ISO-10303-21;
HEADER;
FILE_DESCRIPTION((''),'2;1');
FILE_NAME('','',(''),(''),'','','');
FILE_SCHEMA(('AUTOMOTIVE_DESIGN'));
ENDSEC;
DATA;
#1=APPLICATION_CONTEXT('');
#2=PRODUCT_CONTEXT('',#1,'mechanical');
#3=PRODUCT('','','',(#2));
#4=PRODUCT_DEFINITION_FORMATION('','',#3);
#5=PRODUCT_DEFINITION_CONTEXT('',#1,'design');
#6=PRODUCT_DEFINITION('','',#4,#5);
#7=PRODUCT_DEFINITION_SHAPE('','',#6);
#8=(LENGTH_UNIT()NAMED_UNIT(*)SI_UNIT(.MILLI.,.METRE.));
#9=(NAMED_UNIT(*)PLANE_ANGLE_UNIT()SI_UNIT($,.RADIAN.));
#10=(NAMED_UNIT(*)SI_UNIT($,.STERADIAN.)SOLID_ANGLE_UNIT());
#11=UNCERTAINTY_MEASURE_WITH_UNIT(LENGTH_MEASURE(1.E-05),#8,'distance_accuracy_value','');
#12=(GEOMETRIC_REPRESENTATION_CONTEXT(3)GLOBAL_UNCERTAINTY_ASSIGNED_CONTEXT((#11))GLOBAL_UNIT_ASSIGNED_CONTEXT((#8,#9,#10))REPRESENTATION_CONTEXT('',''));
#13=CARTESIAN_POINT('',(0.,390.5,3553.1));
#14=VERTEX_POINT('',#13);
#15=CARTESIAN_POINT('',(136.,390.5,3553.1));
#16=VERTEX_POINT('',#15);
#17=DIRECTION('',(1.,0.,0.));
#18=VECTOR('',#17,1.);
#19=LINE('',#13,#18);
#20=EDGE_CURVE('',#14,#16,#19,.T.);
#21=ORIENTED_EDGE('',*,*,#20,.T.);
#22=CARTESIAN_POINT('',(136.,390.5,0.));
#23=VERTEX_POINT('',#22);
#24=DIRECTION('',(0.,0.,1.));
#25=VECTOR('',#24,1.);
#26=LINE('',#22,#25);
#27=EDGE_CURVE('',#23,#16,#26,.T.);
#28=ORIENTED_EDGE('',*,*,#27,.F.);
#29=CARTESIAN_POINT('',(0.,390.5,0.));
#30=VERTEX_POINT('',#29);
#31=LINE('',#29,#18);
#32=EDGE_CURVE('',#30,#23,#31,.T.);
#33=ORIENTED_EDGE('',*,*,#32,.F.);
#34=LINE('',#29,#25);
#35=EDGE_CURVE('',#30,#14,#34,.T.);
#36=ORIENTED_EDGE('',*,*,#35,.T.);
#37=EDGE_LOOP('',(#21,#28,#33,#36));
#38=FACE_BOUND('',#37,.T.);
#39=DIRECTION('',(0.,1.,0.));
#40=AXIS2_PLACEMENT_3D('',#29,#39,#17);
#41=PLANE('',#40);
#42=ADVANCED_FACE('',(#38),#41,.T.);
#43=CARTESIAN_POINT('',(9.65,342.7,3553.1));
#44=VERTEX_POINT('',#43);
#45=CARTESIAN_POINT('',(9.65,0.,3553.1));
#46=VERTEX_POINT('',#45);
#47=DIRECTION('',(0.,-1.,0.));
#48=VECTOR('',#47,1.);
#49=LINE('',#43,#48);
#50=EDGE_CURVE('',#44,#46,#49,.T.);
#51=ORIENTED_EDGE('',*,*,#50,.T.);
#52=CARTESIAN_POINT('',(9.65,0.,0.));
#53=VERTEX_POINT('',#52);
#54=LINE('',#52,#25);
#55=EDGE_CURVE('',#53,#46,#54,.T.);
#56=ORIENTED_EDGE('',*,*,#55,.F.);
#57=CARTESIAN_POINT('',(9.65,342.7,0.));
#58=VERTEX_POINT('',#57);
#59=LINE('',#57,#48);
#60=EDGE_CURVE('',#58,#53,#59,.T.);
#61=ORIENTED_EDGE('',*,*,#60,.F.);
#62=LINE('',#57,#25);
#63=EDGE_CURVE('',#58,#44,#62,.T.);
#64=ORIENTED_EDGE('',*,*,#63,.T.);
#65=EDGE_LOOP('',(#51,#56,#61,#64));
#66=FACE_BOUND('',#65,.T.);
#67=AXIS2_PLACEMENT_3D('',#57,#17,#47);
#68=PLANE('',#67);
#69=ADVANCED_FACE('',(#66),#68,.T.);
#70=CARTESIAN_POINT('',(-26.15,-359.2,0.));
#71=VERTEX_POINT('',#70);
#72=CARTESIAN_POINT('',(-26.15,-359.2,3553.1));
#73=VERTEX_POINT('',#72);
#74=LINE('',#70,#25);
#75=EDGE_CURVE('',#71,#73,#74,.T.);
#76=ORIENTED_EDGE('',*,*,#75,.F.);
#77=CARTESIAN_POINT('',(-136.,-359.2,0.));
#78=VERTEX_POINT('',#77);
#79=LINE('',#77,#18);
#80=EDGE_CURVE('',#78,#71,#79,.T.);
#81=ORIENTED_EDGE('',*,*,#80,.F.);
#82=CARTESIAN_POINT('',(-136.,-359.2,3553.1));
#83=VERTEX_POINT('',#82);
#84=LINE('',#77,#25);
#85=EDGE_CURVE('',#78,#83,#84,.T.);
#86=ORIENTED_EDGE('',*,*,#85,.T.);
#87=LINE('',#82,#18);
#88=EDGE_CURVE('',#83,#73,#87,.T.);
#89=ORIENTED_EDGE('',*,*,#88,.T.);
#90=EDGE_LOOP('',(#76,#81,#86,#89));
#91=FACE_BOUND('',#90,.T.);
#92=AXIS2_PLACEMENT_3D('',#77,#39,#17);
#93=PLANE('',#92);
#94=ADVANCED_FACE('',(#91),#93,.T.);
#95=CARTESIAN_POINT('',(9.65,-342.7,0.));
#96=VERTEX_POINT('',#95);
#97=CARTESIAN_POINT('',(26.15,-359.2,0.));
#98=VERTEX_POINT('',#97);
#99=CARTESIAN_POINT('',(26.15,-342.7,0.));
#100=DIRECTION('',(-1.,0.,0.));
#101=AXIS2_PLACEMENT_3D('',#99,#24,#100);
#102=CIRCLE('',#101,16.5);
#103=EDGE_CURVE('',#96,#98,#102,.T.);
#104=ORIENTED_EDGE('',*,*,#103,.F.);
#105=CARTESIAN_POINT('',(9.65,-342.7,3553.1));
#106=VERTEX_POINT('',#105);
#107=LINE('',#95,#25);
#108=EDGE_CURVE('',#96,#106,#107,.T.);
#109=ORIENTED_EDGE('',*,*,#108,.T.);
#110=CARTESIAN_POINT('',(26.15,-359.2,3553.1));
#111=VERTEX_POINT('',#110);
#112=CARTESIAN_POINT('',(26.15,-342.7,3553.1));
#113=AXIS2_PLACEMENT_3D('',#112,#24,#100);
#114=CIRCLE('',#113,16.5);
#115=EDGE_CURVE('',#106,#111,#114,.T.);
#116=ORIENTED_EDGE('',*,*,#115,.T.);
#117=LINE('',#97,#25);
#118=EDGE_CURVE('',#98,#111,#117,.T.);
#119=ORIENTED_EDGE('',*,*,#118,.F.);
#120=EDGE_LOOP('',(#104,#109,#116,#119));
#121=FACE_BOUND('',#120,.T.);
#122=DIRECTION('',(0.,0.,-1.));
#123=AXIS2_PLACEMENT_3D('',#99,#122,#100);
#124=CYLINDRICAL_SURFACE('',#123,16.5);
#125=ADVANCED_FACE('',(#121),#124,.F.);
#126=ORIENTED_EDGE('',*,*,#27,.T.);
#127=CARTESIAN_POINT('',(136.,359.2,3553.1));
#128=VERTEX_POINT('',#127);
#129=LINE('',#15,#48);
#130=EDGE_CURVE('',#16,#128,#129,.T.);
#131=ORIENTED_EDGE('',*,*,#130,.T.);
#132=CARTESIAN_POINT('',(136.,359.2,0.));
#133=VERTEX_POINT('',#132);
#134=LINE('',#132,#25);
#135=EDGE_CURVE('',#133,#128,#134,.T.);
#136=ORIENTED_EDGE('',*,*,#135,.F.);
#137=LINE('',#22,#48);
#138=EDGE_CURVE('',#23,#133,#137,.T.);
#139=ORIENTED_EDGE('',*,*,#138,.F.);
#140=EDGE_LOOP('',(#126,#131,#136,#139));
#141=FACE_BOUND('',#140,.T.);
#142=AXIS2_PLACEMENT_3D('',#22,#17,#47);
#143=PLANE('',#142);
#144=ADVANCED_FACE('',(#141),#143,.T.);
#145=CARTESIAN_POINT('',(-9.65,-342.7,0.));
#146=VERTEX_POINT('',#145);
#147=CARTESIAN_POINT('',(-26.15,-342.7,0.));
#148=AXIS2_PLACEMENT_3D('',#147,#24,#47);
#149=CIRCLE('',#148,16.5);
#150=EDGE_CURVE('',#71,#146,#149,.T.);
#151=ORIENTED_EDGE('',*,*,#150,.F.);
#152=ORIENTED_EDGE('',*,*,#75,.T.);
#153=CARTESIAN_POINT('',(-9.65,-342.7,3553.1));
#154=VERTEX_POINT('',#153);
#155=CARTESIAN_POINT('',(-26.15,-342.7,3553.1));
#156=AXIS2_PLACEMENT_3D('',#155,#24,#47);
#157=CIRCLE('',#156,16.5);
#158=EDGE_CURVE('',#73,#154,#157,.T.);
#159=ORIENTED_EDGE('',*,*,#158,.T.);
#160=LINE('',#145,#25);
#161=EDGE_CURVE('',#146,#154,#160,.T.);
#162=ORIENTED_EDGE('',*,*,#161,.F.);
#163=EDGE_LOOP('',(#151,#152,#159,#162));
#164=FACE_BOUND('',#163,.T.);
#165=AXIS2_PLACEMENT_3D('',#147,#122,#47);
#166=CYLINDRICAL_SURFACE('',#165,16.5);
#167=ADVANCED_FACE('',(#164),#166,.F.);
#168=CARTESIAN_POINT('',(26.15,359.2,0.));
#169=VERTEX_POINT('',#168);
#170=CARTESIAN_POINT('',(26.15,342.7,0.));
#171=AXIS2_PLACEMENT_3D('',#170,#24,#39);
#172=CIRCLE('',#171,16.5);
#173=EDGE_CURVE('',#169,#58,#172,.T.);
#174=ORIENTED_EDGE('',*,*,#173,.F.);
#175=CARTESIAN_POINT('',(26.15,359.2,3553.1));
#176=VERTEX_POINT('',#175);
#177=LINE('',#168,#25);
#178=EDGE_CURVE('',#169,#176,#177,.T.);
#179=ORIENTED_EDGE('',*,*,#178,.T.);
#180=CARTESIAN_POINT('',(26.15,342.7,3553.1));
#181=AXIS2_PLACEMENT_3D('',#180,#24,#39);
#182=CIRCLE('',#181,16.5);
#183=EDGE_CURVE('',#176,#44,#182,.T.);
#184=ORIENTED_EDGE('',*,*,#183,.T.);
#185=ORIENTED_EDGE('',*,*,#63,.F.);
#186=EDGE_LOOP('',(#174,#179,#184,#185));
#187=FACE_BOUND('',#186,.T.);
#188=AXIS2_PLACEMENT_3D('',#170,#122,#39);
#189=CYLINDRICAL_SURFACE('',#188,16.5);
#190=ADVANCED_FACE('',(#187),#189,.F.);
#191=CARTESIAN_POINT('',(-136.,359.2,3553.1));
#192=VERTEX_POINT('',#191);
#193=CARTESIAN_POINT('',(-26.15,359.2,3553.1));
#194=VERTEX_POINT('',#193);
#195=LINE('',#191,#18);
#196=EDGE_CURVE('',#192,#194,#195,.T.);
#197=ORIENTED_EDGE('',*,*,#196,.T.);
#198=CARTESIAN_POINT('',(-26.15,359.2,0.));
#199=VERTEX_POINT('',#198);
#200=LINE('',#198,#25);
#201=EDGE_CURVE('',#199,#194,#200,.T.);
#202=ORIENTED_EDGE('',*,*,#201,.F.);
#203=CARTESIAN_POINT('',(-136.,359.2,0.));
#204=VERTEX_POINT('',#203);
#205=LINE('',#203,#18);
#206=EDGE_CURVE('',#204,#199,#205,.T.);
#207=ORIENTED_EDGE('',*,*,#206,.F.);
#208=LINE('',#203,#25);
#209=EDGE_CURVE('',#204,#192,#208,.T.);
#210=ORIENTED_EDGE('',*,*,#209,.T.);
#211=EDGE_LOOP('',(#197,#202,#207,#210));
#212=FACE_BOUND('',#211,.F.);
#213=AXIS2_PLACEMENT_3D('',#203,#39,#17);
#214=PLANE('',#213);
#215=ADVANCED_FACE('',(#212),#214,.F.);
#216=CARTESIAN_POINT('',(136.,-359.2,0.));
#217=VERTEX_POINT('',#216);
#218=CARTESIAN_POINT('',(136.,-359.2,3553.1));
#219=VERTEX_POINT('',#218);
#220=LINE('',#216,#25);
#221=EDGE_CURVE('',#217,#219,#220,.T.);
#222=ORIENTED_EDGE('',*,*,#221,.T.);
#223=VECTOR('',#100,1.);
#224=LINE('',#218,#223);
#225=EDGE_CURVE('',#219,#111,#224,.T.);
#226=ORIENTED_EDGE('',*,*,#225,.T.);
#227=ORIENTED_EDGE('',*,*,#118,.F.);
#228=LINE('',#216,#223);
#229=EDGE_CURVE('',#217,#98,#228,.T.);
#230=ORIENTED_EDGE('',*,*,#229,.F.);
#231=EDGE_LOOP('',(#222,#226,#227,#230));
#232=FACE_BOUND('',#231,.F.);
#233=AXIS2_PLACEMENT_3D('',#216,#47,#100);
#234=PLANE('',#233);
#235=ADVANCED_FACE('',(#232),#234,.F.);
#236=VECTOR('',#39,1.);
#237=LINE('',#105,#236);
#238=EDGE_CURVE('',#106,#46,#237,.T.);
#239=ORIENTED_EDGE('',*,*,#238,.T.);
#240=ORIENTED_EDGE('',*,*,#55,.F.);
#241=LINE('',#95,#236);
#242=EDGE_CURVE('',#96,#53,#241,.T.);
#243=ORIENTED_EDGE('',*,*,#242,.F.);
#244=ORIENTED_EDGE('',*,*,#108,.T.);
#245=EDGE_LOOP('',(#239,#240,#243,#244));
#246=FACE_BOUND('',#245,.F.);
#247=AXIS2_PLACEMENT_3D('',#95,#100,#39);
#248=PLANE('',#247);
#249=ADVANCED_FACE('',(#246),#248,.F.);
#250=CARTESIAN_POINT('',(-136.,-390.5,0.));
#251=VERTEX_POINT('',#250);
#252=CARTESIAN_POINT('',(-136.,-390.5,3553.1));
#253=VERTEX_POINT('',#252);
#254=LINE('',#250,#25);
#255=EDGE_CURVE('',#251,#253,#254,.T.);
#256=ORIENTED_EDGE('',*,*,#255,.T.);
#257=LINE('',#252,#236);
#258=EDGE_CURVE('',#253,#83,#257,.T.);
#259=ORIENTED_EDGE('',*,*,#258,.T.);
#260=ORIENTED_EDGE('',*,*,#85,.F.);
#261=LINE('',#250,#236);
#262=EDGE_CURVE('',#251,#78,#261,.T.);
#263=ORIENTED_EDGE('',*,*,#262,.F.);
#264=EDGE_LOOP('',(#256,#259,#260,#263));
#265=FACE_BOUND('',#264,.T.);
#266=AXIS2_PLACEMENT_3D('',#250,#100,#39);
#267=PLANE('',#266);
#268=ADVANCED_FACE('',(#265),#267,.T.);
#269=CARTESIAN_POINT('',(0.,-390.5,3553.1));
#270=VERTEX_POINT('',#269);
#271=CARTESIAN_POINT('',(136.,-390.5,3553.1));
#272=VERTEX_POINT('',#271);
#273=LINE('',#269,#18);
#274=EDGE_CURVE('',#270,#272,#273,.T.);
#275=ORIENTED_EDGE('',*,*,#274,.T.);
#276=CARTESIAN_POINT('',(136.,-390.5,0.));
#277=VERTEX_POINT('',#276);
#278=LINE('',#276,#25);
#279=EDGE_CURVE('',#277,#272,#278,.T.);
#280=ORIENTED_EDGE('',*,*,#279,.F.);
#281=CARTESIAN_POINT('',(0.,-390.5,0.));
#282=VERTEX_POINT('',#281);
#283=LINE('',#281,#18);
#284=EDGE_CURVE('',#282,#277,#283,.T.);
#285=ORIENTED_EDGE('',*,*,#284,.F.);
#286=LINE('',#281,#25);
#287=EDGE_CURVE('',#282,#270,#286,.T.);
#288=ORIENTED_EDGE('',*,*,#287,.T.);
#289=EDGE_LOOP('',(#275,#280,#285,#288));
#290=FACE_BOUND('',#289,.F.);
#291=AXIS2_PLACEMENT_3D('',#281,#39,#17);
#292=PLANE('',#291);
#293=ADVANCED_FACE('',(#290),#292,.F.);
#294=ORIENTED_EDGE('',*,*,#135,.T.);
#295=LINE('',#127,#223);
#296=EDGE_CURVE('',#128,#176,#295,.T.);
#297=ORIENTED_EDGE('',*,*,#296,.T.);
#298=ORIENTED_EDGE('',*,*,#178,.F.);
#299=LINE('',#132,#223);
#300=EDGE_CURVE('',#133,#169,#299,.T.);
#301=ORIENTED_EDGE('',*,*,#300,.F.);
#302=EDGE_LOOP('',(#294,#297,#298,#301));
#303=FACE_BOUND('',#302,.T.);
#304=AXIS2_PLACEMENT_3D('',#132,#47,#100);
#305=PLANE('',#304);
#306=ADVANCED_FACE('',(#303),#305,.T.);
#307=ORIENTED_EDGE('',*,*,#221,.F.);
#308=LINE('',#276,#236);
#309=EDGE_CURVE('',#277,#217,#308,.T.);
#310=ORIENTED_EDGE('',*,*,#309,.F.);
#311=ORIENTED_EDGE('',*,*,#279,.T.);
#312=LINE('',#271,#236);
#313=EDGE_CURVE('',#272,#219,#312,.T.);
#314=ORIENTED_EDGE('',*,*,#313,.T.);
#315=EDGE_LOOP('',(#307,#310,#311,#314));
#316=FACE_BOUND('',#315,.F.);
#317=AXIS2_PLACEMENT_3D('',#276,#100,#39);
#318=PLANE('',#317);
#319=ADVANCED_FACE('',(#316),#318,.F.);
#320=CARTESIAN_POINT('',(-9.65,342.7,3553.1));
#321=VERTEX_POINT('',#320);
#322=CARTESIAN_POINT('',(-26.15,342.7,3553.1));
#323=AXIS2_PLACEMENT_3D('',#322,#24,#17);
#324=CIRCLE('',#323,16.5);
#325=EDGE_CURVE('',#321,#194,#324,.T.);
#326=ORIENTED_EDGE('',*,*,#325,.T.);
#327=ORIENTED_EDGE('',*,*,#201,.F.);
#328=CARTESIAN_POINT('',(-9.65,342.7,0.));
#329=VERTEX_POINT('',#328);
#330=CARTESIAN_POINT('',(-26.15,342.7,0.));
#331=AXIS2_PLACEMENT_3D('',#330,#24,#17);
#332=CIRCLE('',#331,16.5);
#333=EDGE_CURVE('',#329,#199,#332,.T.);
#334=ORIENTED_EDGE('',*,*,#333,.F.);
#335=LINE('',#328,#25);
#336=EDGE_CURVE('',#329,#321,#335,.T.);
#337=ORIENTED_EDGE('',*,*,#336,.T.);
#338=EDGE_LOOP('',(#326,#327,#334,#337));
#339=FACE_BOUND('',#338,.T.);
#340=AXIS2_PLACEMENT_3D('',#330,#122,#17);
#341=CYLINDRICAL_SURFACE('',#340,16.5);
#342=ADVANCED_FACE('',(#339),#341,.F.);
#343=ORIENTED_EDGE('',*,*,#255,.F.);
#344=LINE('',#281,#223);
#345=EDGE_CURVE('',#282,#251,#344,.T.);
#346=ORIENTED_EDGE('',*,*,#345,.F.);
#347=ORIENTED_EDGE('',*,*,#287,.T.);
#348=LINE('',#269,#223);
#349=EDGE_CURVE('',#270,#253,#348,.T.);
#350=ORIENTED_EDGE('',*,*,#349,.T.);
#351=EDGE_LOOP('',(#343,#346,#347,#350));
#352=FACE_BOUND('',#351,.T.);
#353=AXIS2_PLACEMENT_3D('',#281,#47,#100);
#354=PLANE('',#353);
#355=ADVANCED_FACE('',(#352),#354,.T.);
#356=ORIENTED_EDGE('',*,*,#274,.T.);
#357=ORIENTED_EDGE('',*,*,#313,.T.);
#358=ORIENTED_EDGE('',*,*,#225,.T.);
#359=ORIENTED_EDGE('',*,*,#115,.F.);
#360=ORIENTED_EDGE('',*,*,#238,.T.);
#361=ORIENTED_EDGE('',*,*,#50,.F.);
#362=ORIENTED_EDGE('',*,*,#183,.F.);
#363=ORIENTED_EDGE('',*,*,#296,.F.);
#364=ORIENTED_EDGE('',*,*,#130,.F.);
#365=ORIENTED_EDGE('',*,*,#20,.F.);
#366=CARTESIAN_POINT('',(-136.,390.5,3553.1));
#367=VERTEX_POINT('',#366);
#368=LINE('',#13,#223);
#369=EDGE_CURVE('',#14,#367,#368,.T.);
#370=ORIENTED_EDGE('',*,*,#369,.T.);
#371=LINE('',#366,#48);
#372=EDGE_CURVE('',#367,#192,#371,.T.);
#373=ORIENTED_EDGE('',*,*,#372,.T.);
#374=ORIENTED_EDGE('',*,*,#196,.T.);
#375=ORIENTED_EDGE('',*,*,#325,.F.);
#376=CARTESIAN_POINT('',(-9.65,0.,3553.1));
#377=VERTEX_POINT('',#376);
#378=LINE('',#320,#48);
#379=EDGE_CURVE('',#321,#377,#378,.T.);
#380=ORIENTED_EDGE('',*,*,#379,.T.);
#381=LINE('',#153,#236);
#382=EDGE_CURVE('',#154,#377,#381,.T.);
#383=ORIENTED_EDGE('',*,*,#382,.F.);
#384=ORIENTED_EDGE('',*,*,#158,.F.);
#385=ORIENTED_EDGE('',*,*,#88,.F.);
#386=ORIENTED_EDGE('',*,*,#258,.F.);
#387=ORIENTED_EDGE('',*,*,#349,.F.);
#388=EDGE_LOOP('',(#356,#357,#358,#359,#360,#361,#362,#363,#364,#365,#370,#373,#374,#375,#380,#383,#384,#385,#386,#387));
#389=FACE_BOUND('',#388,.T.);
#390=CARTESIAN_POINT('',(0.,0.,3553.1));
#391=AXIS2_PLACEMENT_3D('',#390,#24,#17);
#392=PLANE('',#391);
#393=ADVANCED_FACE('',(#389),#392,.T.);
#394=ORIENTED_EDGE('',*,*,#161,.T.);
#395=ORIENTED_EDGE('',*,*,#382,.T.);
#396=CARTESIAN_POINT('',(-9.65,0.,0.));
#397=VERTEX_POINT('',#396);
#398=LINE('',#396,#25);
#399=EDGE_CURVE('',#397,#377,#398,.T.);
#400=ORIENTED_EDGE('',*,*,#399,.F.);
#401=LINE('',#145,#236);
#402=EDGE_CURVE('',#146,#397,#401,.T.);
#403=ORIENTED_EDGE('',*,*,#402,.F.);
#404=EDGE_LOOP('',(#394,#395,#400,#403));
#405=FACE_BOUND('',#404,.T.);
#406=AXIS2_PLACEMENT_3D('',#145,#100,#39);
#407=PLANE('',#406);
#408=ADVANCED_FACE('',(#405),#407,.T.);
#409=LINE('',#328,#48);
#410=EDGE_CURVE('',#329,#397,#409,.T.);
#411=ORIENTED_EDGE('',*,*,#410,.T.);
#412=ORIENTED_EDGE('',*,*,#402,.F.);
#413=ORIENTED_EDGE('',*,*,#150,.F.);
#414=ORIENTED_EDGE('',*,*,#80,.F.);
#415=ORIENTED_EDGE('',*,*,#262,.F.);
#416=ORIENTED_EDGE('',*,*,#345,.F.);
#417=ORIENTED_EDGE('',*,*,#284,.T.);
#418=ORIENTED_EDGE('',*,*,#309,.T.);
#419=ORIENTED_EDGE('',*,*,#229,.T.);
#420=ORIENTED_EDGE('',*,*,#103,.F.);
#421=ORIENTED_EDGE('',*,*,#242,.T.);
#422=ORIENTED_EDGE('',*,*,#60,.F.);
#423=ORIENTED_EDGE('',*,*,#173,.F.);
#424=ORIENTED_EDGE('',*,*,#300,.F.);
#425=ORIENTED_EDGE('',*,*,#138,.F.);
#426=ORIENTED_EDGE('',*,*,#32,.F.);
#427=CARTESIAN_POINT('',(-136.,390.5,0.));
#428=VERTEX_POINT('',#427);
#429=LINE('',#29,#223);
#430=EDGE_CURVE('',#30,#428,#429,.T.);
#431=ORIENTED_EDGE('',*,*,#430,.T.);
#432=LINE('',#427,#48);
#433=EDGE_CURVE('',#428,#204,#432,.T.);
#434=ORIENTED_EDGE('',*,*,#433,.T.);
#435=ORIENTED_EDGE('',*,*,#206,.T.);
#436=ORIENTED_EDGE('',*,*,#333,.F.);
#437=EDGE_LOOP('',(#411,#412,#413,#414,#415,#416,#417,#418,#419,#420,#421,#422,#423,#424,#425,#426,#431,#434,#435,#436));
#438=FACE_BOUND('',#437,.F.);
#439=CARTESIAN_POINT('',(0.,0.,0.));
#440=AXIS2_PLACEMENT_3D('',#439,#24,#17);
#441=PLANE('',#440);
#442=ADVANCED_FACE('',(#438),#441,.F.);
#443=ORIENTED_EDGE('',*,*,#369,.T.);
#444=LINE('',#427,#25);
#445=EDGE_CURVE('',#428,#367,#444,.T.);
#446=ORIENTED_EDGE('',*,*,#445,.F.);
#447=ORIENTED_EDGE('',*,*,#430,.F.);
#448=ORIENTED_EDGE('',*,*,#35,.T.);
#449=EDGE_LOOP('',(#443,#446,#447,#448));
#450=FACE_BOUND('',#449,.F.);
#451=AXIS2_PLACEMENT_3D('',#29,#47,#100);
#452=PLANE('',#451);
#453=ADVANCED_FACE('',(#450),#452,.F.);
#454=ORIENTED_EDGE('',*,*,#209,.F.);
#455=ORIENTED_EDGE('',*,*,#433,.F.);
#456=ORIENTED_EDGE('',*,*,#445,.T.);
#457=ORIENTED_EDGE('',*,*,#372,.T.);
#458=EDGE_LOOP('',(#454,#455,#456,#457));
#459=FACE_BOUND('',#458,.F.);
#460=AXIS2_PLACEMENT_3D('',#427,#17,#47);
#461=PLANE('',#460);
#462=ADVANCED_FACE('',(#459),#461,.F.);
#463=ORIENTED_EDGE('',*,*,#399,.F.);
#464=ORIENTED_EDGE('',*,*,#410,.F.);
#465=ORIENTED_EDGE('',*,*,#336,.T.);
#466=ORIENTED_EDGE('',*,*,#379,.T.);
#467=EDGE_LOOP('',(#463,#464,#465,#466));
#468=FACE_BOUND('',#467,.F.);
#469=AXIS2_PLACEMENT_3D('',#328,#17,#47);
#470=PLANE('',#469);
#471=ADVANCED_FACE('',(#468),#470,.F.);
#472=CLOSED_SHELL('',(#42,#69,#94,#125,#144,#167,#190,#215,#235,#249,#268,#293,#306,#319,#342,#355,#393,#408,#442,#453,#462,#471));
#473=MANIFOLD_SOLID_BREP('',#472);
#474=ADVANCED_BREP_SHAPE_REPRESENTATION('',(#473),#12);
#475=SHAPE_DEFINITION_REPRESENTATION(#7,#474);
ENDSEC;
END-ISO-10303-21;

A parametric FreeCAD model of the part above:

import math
import FreeCAD as App
import Part
import Sketcher

doc = App.newDocument("Part")
params = doc.addObject("Spreadsheet::Sheet", "Params")
for row, (alias, value) in enumerate([
    ("sketch1_radius", "16.5 mm"),
    ("sketch1_height", "31.3 mm"),
    ("pad1_length", "3553.1 mm"),
], start=1):
    params.set(f"A{row}", alias)
    params.set(f"B{row}", "=" + value)
    params.setAlias(f"B{row}", alias)

body = doc.addObject("PartDesign::Body", "Body")

# Sketch on XY plane
sketch1 = doc.addObject("Sketcher::SketchObject", "Sketch")
body.addObject(sketch1)
sketch1.AttachmentSupport = (doc.XY_Plane, [""])
sketch1.MapMode = "FlatFace"
sketch1.addGeometry([
    Part.LineSegment(App.Vector(-136, -359, 0), App.Vector(-136, -390, 0)),  # 0
    Part.LineSegment(App.Vector(-136, -390, 0), App.Vector(136, -390, 0)),  # 1
    Part.LineSegment(App.Vector(136, -390, 0), App.Vector(136, -359, 0)),  # 2
    Part.LineSegment(App.Vector(136, -359, 0), App.Vector(26, -359, 0)),  # 3
    Part.ArcOfCircle(Part.Circle(App.Vector(26, -343, 0), App.Vector(0, 0, 1), 16), math.radians(180), math.radians(270)),  # 4
    Part.LineSegment(App.Vector(10, -343, 0), App.Vector(10, 343, 0)),  # 5
    Part.ArcOfCircle(Part.Circle(App.Vector(26, 343, 0), App.Vector(0, 0, 1), 16), math.radians(90), math.radians(180)),  # 6
    Part.LineSegment(App.Vector(26, 359, 0), App.Vector(136, 359, 0)),  # 7
    Part.LineSegment(App.Vector(136, 359, 0), App.Vector(136, 390, 0)),  # 8
    Part.LineSegment(App.Vector(136, 390, 0), App.Vector(-136, 390, 0)),  # 9
    Part.LineSegment(App.Vector(-136, 390, 0), App.Vector(-136, 359, 0)),  # 10
    Part.LineSegment(App.Vector(-136, 359, 0), App.Vector(-26, 359, 0)),  # 11
    Part.ArcOfCircle(Part.Circle(App.Vector(-26, 343, 0), App.Vector(0, 0, 1), 16), math.radians(0), math.radians(90)),  # 12
    Part.LineSegment(App.Vector(-10, 343, 0), App.Vector(-10, -343, 0)),  # 13
    Part.ArcOfCircle(Part.Circle(App.Vector(-26, -343, 0), App.Vector(0, 0, 1), 16), math.radians(-90), math.radians(0)),  # 14
    Part.LineSegment(App.Vector(-26, -359, 0), App.Vector(-136, -359, 0)),  # 15
], False)
sketch1.addConstraint([
    Sketcher.Constraint("Coincident", 0, 2, 1, 1),
    Sketcher.Constraint("Coincident", 1, 2, 2, 1),
    Sketcher.Constraint("Coincident", 2, 2, 3, 1),
    Sketcher.Constraint("Tangent", 3, 2, 4, 2),
    Sketcher.Constraint("Tangent", 4, 1, 5, 1),
    Sketcher.Constraint("Tangent", 5, 2, 6, 2),
    Sketcher.Constraint("Tangent", 6, 1, 7, 1),
    Sketcher.Constraint("Coincident", 7, 2, 8, 1),
    Sketcher.Constraint("Coincident", 8, 2, 9, 1),
    Sketcher.Constraint("Coincident", 9, 2, 10, 1),
    Sketcher.Constraint("Coincident", 10, 2, 11, 1),
    Sketcher.Constraint("Tangent", 11, 2, 12, 2),
    Sketcher.Constraint("Tangent", 12, 1, 13, 1),
    Sketcher.Constraint("Tangent", 13, 2, 14, 2),
    Sketcher.Constraint("Tangent", 14, 1, 15, 1),
    Sketcher.Constraint("Coincident", 15, 2, 0, 1),
    Sketcher.Constraint("Vertical", 0),
    Sketcher.Constraint("Horizontal", 1),
    Sketcher.Constraint("Vertical", 2),
    Sketcher.Constraint("Horizontal", 3),
    Sketcher.Constraint("Vertical", 5),
    Sketcher.Constraint("Horizontal", 7),
    Sketcher.Constraint("Vertical", 8),
    Sketcher.Constraint("Horizontal", 9),
    Sketcher.Constraint("Vertical", 10),
    Sketcher.Constraint("Horizontal", 11),
    Sketcher.Constraint("Vertical", 13),
    Sketcher.Constraint("Horizontal", 15),
    Sketcher.Constraint("Equal", 4, 6),
    Sketcher.Constraint("Equal", 6, 12),
    Sketcher.Constraint("Equal", 12, 14),
    Sketcher.Constraint("Symmetric", 4, 3, 12, 3, -1, 1),
    Sketcher.Constraint("Symmetric", 0, 2, 8, 2, -1, 1),
    Sketcher.Constraint("Symmetric", 7, 2, 10, 2, -2),
    Sketcher.Constraint("Symmetric", 2, 2, 15, 2, -2),
    Sketcher.Constraint("Radius", 4, 16.5),
    Sketcher.Constraint("DistanceY", 0, 2, 0, 1, 31.3),
    Sketcher.Constraint("DistanceX", 0, 2, -1, 1, 136.0),
    Sketcher.Constraint("DistanceY", 0, 2, -1, 1, 390.5),
    Sketcher.Constraint("DistanceX", -1, 1, 4, 1, 9.65),
])
sketch1.setExpression("Constraints[35]", "Params.sketch1_radius")
sketch1.setExpression("Constraints[36]", "Params.sketch1_height")
pad1 = doc.addObject("PartDesign::Pad", "Pad")
body.addObject(pad1)
pad1.Profile = sketch1
pad1.setExpression("Length", "Params.pad1_length")

doc.recompute()
